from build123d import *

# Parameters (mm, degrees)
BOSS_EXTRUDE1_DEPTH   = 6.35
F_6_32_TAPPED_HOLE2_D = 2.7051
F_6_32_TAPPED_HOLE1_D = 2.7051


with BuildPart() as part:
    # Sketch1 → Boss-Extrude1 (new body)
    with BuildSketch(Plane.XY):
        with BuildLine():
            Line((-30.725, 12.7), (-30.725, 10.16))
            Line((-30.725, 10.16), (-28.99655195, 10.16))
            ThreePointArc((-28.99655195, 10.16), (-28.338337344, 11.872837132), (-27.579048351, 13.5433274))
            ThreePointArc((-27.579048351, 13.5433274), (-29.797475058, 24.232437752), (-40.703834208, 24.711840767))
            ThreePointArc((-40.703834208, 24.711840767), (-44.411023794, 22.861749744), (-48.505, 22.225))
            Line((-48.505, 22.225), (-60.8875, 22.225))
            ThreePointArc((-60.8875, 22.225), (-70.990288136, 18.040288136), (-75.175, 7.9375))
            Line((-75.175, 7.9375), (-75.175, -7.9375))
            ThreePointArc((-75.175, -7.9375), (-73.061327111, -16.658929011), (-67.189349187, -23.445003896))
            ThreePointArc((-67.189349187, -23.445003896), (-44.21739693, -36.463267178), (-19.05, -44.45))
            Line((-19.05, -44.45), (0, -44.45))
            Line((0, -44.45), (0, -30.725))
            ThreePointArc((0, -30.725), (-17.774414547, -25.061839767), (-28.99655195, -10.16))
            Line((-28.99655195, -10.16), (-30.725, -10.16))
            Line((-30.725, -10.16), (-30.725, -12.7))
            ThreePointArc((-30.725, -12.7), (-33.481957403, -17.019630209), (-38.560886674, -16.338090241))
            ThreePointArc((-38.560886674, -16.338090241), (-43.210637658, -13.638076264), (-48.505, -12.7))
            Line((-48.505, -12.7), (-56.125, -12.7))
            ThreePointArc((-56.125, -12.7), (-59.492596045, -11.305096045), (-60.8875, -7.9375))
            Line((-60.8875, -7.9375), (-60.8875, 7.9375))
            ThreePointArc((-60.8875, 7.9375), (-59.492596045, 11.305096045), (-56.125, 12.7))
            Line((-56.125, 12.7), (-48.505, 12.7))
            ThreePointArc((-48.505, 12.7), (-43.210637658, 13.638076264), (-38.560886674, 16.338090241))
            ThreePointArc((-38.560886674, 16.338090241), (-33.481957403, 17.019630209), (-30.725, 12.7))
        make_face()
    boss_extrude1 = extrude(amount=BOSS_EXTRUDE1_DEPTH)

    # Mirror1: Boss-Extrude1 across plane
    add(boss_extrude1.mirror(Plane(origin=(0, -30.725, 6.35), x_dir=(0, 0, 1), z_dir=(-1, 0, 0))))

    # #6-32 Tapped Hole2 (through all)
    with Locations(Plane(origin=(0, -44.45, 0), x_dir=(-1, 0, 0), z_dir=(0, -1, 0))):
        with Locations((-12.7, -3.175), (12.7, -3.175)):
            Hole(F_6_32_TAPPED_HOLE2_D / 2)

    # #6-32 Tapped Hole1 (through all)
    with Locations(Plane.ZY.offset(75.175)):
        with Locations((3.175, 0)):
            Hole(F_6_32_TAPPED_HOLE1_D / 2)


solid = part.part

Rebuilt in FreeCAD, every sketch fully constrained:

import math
import FreeCAD as App
import Part
import Sketcher

V = App.Vector
Q = App.Units.Quantity

doc = App.newDocument("Part")
body = doc.addObject("PartDesign::Body", "Body")

sketch1 = body.newObject("Sketcher::SketchObject", "Sketch")
sketch1.AttachmentSupport = (doc.getObject("XY_Plane"), [""])
sketch1.MapMode = "FlatFace"
sketch1.addGeometry([
    Part.LineSegment(V(-30.725, 12.7, 0), V(-30.725, 10.16, 0)),
    Part.LineSegment(V(-30.725, 10.16, 0), V(-28.996552, 10.16, 0)),
    Part.ArcOfCircle(Part.Circle(V(0, 0, 0), V(0, 0, 1), 30.725), math.radians(153.845589), math.radians(160.690229)),
    Part.ArcOfCircle(Part.Circle(V(-35.558796, 17.461966, 0), V(0, 0, 1), 8.89), math.radians(-26.154411), math.radians(125.362284)),
    Part.ArcOfCircle(Part.Circle(V(-48.505, 35.704465, 0), V(0, 0, 1), 13.479465), math.radians(-90), math.radians(-54.637716)),
    Part.LineSegment(V(-48.505, 22.225, 0), V(-60.8875, 22.225, 0)),
    Part.ArcOfCircle(Part.Circle(V(-60.8875, 7.9375, 0), V(0, 0, 1), 14.2875), math.radians(90), math.radians(180)),
    Part.LineSegment(V(-75.175, 7.9375, 0), V(-75.175, -7.9375, 0)),
    Part.ArcOfCircle(Part.Circle(V(-56.125, -7.9375, 0), V(0, 0, 1), 19.05), math.radians(180), math.radians(234.492767)),
    Part.ArcOfCircle(Part.Circle(V(6.572979, 79.938355, 0), V(0, 0, 1), 127), math.radians(-125.507233), math.radians(-101.639649)),
    Part.LineSegment(V(-19.05, -44.45, 0), V(0, -44.45, 0)),
    Part.LineSegment(V(0, -44.45, 0), V(0, -30.725, 0)),
    Part.ArcOfCircle(Part.Circle(V(0, 0, 0), V(0, 0, 1), 30.725), math.radians(-160.690229), math.radians(-90)),
    Part.LineSegment(V(-28.996552, -10.16, 0), V(-30.725, -10.16, 0)),
    Part.LineSegment(V(-30.725, -10.16, 0), V(-30.725, -12.7, 0)),
    Part.ArcOfCircle(Part.Circle(V(-35.4875, -12.7, 0), V(0, 0, 1), 4.7625), math.radians(-130.190462), math.radians(0)),
    Part.ArcOfCircle(Part.Circle(V(-48.505, -28.109333, 0), V(0, 0, 1), 15.409333), math.radians(49.809538), math.radians(90)),
    Part.LineSegment(V(-48.505, -12.7, 0), V(-56.125, -12.7, 0)),
    Part.ArcOfCircle(Part.Circle(V(-56.125, -7.9375, 0), V(0, 0, 1), 4.7625), math.radians(-180), math.radians(-90)),
    Part.LineSegment(V(-60.8875, -7.9375, 0), V(-60.8875, 7.9375, 0)),
    Part.ArcOfCircle(Part.Circle(V(-56.125, 7.9375, 0), V(0, 0, 1), 4.7625), math.radians(90), math.radians(180)),
    Part.LineSegment(V(-56.125, 12.7, 0), V(-48.505, 12.7, 0)),
    Part.ArcOfCircle(Part.Circle(V(-48.505, 28.109333, 0), V(0, 0, 1), 15.409333), math.radians(-90), math.radians(-49.809538)),
    Part.ArcOfCircle(Part.Circle(V(-35.4875, 12.7, 0), V(0, 0, 1), 4.7625), math.radians(0), math.radians(130.190462)),
], False)
sketch1.addConstraint([
    Sketcher.Constraint("Coincident", 0, 2, 1, 1),
    Sketcher.Constraint("Coincident", 1, 2, 2, 2),
    Sketcher.Constraint("Tangent", 2, 1, 3, 1),
    Sketcher.Constraint("Tangent", 3, 2, 4, 2),
    Sketcher.Constraint("Tangent", 4, 1, 5, 1),
    Sketcher.Constraint("Tangent", 5, 2, 6, 1),
    Sketcher.Constraint("Tangent", 6, 2, 7, 1),
    Sketcher.Constraint("Tangent", 7, 2, 8, 1),
    Sketcher.Constraint("Tangent", 8, 2, 9, 1),
    Sketcher.Constraint("Coincident", 9, 2, 10, 1),
    Sketcher.Constraint("Coincident", 10, 2, 11, 1),
    Sketcher.Constraint("Coincident", 11, 2, 12, 2),
    Sketcher.Constraint("Coincident", 12, 1, 13, 1),
    Sketcher.Constraint("Coincident", 13, 2, 14, 1),
    Sketcher.Constraint("Tangent", 14, 2, 15, 2),
    Sketcher.Constraint("Tangent", 15, 1, 16, 1),
    Sketcher.Constraint("Tangent", 16, 2, 17, 1),
    Sketcher.Constraint("Tangent", 17, 2, 18, 2),
    Sketcher.Constraint("Tangent", 18, 1, 19, 1),
    Sketcher.Constraint("Tangent", 19, 2, 20, 2),
    Sketcher.Constraint("Tangent", 20, 1, 21, 1),
    Sketcher.Constraint("Tangent", 21, 2, 22, 1),
    Sketcher.Constraint("Tangent", 22, 2, 23, 2),
    Sketcher.Constraint("Tangent", 23, 1, 0, 1),
    Sketcher.Constraint("Vertical", 0),
    Sketcher.Constraint("Horizontal", 1),
    Sketcher.Constraint("Horizontal", 5),
    Sketcher.Constraint("Vertical", 7),
    Sketcher.Constraint("Horizontal", 10),
    Sketcher.Constraint("Vertical", 11),
    Sketcher.Constraint("Horizontal", 13),
    Sketcher.Constraint("Vertical", 14),
    Sketcher.Constraint("Horizontal", 17),
    Sketcher.Constraint("Vertical", 19),
    Sketcher.Constraint("Horizontal", 21),
    Sketcher.Constraint("Coincident", 2, 3, -1, 1),
    Sketcher.Constraint("Coincident", 12, 3, -1, 1),
    Sketcher.Constraint("Coincident", 18, 3, 8, 3),
    Sketcher.Constraint("Coincident", 19, 2, 6, 3),
    Sketcher.Constraint("Equal", 2, 12),
    Sketcher.Constraint("Equal", 15, 18),
    Sketcher.Constraint("Equal", 18, 20),
    Sketcher.Constraint("Equal", 16, 22),
    Sketcher.Constraint("Equal", 20, 23),
    Sketcher.Constraint("Symmetric", 16, 3, 22, 3, -1),
    Sketcher.Constraint("Symmetric", 0, 2, 13, 2, -1),
    Sketcher.Constraint("PointOnObject", 10, 2, -2),
    Sketcher.Constraint("Horizontal", 14, 2, 16, 2),
    Sketcher.Constraint("Vertical", 4, 3, 16, 3),
    Sketcher.Constraint("Radius", 9, Q("5 in")),
    Sketcher.Constraint("Radius", 3, Q("0.35 in")),
    Sketcher.Constraint("Radius", 8, Q("0.75 in")),
    Sketcher.Constraint("DistanceX", 17, 2, 17, 1, Q("0.3 in")),
    Sketcher.Constraint("DistanceY", 0, 2, 0, 1, Q("0.1 in")),
    Sketcher.Constraint("Radius", 6, Q("0.5625 in")),
    Sketcher.Constraint("DistanceX", 6, 3, 15, 3, Q("1 in")),
    Sketcher.Constraint("DistanceY", 15, 3, 23, 3, Q("1 in")),
    Sketcher.Constraint("DistanceX", 10, 1, 10, 2, Q("0.75 in")),
    Sketcher.Constraint("DistanceY", 9, 2, -1, 1, Q("1.75 in")),
    Sketcher.Constraint("Radius", 2, Q("30.725 mm")),
    Sketcher.Constraint("Radius", 4, Q("13.479465 mm")),
    Sketcher.Constraint("DistanceX", 1, 1, 1, 2, Q("1.728448 mm")),
])
pad1 = body.newObject("PartDesign::Pad", "Pad")
pad1.Profile = sketch1
pad1.Length = Q("0.25 in")
doc.recompute()

mirrored = body.newObject("PartDesign::Mirrored", "Mirrored")
mirrored.Originals = [pad1]
mirrored.MirrorPlane = (doc.getObject("YZ_Plane"), [""])
body.Tip = mirrored

sketch2 = body.newObject("Sketcher::SketchObject", "Sketch001")
sketch2.AttachmentSupport = (doc.getObject("XZ_Plane"), [""])
sketch2.MapMode = "FlatFace"
sketch2.AttachmentOffset = App.Placement(V(0, 0, 1.75 * 25.4), App.Rotation())
sketch2.addGeometry([
    Part.Circle(V(12.7, 3.175, 0), V(0, 0, 1), 1.35255),
    Part.Circle(V(-12.7, 3.175, 0), V(0, 0, 1), 1.35255),
], False)
sketch2.addConstraint([
    Sketcher.Constraint("Equal", 0, 1),
    Sketcher.Constraint("Symmetric", 0, 3, 1, 3, -2),
    Sketcher.Constraint("DistanceX", 1, 3, 0, 3, Q("1 in")),
    Sketcher.Constraint("Diameter", 0, Q("0.1065 in")),
    Sketcher.Constraint("DistanceY", -1, 1, 0, 3, Q("0.125 in")),
])
doc.recompute()
hole = body.newObject("PartDesign::Hole", "Hole")
hole.Profile = sketch2
hole.ThreadType = "None"
hole.Diameter = Q("0.1065 in")
hole.DepthType = "ThroughAll"

sketch3 = body.newObject("Sketcher::SketchObject", "Sketch002")
sketch3.AttachmentSupport = (doc.getObject("YZ_Plane"), [""])
sketch3.MapMode = "FlatFace"
sketch3.AttachmentOffset = App.Placement(V(0, 0, -75.175), App.Rotation())
sketch3.addGeometry(Part.Circle(V(0, 3.175, 0), V(0, 0, 1), 1.35255), False)
sketch3.addConstraint([
    Sketcher.Constraint("PointOnObject", 0, 3, -2),
    Sketcher.Constraint("Diameter", 0, Q("0.1065 in")),
    Sketcher.Constraint("DistanceY", -1, 1, 0, 3, Q("0.125 in")),
])
doc.recompute()
hole2 = body.newObject("PartDesign::Hole", "Hole001")
hole2.Profile = sketch3
hole2.ThreadType = "None"
hole2.Diameter = Q("0.1065 in")
hole2.DepthType = "ThroughAll"
hole2.Reversed = True

doc.recompute()
